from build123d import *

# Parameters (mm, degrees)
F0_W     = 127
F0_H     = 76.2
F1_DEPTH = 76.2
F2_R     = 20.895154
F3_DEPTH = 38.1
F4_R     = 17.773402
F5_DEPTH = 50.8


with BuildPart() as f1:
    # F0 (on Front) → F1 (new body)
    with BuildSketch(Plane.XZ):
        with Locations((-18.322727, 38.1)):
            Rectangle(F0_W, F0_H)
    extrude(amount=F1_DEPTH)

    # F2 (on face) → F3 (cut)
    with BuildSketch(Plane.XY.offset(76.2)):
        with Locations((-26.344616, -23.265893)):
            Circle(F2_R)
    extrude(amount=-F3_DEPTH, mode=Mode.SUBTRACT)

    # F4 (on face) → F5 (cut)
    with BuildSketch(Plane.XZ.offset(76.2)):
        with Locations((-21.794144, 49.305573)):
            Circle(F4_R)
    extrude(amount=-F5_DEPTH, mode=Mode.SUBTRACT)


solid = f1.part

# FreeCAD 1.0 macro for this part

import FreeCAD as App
import Part
import Sketcher

V = App.Vector
Q = App.Units.Quantity


def add_polygon(sketch, points):
    """Adds a closed chain of lines whose ends are joined by coincident constraints."""
    first, n = sketch.GeometryCount, len(points)
    for a, b in zip(points, points[1:] + points[:1]):
        sketch.addGeometry(Part.LineSegment(App.Vector(*a, 0), App.Vector(*b, 0)), False)
    for i in range(n):
        sketch.addConstraint(Sketcher.Constraint("Coincident", first + i, 2, first + (i + 1) % n, 1))

doc = App.newDocument("Part")
params = doc.addObject("Spreadsheet::Sheet", "Params")
for row, (alias, value) in enumerate([
    ("sketch1_width", "5 in"),
    ("sketch1_height", "3 in"),
    ("pad1_length", "3 in"),
    ("pocket1_length", "1.5 in"),
    ("pocket2_length", "2 in"),
], start=1):
    params.set(f"A{row}", alias)
    params.set(f"B{row}", "=" + value)
    params.setAlias(f"B{row}", alias)

body = doc.addObject("PartDesign::Body", "Body")

sketch1 = body.newObject("Sketcher::SketchObject", "Sketch")
sketch1.AttachmentSupport = (doc.getObject("XZ_Plane"), [""])
sketch1.MapMode = "FlatFace"
add_polygon(sketch1, [(-82, 76), (-82, 0), (45, 0), (45, 76)])
sketch1.addConstraint(Sketcher.Constraint("Vertical", 0))
sketch1.addConstraint(Sketcher.Constraint("Horizontal", 1))
sketch1.addConstraint(Sketcher.Constraint("Vertical", 2))
sketch1.addConstraint(Sketcher.Constraint("Horizontal", 3))
sketch1.addConstraint(Sketcher.Constraint("PointOnObject", 0, 2, -1))
sketch1.addConstraint(Sketcher.Constraint("DistanceX", 1, 1, 1, 2, Q("5 in")))
sketch1.addConstraint(Sketcher.Constraint("DistanceY", 0, 2, 0, 1, Q("3 in")))
sketch1.addConstraint(Sketcher.Constraint("DistanceX", 0, 2, -1, 1, 81.822727))
sketch1.setExpression("Constraints[9]", "Params.sketch1_width")
sketch1.setExpression("Constraints[10]", "Params.sketch1_height")
pad1 = body.newObject("PartDesign::Pad", "Pad")
pad1.Profile = sketch1
pad1.setExpression("Length", "Params.pad1_length")

sketch2 = body.newObject("Sketcher::SketchObject", "Sketch001")
sketch2.AttachmentSupport = (doc.getObject("XY_Plane"), [""])
sketch2.MapMode = "FlatFace"
sketch2.AttachmentOffset = App.Placement(V(0, 0, 3 * 25.4), App.Rotation())
sketch2.addGeometry(Part.Circle(V(-26, -23, 0), V(0, 0, 1), 21), False)
sketch2.addConstraint(Sketcher.Constraint("Diameter", 0, 41.790308))
sketch2.addConstraint(Sketcher.Constraint("DistanceX", 0, 3, -1, 1, 26.344616))
sketch2.addConstraint(Sketcher.Constraint("DistanceY", 0, 3, -1, 1, 23.265893))
pocket1 = body.newObject("PartDesign::Pocket", "Pocket")
pocket1.Profile = sketch2
pocket1.setExpression("Length", "Params.pocket1_length")

sketch3 = body.newObject("Sketcher::SketchObject", "Sketch002")
sketch3.AttachmentSupport = (doc.getObject("XZ_Plane"), [""])
sketch3.MapMode = "FlatFace"
sketch3.AttachmentOffset = App.Placement(V(0, 0, 3 * 25.4), App.Rotation())
sketch3.addGeometry(Part.Circle(V(-22, 49, 0), V(0, 0, 1), 18), False)
sketch3.addConstraint(Sketcher.Constraint("Diameter", 0, 35.546804))
sketch3.addConstraint(Sketcher.Constraint("DistanceX", 0, 3, -1, 1, 21.794144))
sketch3.addConstraint(Sketcher.Constraint("DistanceY", -1, 1, 0, 3, 49.305573))
pocket2 = body.newObject("PartDesign::Pocket", "Pocket001")
pocket2.Profile = sketch3
pocket2.setExpression("Length", "Params.pocket2_length")

doc.recompute()
